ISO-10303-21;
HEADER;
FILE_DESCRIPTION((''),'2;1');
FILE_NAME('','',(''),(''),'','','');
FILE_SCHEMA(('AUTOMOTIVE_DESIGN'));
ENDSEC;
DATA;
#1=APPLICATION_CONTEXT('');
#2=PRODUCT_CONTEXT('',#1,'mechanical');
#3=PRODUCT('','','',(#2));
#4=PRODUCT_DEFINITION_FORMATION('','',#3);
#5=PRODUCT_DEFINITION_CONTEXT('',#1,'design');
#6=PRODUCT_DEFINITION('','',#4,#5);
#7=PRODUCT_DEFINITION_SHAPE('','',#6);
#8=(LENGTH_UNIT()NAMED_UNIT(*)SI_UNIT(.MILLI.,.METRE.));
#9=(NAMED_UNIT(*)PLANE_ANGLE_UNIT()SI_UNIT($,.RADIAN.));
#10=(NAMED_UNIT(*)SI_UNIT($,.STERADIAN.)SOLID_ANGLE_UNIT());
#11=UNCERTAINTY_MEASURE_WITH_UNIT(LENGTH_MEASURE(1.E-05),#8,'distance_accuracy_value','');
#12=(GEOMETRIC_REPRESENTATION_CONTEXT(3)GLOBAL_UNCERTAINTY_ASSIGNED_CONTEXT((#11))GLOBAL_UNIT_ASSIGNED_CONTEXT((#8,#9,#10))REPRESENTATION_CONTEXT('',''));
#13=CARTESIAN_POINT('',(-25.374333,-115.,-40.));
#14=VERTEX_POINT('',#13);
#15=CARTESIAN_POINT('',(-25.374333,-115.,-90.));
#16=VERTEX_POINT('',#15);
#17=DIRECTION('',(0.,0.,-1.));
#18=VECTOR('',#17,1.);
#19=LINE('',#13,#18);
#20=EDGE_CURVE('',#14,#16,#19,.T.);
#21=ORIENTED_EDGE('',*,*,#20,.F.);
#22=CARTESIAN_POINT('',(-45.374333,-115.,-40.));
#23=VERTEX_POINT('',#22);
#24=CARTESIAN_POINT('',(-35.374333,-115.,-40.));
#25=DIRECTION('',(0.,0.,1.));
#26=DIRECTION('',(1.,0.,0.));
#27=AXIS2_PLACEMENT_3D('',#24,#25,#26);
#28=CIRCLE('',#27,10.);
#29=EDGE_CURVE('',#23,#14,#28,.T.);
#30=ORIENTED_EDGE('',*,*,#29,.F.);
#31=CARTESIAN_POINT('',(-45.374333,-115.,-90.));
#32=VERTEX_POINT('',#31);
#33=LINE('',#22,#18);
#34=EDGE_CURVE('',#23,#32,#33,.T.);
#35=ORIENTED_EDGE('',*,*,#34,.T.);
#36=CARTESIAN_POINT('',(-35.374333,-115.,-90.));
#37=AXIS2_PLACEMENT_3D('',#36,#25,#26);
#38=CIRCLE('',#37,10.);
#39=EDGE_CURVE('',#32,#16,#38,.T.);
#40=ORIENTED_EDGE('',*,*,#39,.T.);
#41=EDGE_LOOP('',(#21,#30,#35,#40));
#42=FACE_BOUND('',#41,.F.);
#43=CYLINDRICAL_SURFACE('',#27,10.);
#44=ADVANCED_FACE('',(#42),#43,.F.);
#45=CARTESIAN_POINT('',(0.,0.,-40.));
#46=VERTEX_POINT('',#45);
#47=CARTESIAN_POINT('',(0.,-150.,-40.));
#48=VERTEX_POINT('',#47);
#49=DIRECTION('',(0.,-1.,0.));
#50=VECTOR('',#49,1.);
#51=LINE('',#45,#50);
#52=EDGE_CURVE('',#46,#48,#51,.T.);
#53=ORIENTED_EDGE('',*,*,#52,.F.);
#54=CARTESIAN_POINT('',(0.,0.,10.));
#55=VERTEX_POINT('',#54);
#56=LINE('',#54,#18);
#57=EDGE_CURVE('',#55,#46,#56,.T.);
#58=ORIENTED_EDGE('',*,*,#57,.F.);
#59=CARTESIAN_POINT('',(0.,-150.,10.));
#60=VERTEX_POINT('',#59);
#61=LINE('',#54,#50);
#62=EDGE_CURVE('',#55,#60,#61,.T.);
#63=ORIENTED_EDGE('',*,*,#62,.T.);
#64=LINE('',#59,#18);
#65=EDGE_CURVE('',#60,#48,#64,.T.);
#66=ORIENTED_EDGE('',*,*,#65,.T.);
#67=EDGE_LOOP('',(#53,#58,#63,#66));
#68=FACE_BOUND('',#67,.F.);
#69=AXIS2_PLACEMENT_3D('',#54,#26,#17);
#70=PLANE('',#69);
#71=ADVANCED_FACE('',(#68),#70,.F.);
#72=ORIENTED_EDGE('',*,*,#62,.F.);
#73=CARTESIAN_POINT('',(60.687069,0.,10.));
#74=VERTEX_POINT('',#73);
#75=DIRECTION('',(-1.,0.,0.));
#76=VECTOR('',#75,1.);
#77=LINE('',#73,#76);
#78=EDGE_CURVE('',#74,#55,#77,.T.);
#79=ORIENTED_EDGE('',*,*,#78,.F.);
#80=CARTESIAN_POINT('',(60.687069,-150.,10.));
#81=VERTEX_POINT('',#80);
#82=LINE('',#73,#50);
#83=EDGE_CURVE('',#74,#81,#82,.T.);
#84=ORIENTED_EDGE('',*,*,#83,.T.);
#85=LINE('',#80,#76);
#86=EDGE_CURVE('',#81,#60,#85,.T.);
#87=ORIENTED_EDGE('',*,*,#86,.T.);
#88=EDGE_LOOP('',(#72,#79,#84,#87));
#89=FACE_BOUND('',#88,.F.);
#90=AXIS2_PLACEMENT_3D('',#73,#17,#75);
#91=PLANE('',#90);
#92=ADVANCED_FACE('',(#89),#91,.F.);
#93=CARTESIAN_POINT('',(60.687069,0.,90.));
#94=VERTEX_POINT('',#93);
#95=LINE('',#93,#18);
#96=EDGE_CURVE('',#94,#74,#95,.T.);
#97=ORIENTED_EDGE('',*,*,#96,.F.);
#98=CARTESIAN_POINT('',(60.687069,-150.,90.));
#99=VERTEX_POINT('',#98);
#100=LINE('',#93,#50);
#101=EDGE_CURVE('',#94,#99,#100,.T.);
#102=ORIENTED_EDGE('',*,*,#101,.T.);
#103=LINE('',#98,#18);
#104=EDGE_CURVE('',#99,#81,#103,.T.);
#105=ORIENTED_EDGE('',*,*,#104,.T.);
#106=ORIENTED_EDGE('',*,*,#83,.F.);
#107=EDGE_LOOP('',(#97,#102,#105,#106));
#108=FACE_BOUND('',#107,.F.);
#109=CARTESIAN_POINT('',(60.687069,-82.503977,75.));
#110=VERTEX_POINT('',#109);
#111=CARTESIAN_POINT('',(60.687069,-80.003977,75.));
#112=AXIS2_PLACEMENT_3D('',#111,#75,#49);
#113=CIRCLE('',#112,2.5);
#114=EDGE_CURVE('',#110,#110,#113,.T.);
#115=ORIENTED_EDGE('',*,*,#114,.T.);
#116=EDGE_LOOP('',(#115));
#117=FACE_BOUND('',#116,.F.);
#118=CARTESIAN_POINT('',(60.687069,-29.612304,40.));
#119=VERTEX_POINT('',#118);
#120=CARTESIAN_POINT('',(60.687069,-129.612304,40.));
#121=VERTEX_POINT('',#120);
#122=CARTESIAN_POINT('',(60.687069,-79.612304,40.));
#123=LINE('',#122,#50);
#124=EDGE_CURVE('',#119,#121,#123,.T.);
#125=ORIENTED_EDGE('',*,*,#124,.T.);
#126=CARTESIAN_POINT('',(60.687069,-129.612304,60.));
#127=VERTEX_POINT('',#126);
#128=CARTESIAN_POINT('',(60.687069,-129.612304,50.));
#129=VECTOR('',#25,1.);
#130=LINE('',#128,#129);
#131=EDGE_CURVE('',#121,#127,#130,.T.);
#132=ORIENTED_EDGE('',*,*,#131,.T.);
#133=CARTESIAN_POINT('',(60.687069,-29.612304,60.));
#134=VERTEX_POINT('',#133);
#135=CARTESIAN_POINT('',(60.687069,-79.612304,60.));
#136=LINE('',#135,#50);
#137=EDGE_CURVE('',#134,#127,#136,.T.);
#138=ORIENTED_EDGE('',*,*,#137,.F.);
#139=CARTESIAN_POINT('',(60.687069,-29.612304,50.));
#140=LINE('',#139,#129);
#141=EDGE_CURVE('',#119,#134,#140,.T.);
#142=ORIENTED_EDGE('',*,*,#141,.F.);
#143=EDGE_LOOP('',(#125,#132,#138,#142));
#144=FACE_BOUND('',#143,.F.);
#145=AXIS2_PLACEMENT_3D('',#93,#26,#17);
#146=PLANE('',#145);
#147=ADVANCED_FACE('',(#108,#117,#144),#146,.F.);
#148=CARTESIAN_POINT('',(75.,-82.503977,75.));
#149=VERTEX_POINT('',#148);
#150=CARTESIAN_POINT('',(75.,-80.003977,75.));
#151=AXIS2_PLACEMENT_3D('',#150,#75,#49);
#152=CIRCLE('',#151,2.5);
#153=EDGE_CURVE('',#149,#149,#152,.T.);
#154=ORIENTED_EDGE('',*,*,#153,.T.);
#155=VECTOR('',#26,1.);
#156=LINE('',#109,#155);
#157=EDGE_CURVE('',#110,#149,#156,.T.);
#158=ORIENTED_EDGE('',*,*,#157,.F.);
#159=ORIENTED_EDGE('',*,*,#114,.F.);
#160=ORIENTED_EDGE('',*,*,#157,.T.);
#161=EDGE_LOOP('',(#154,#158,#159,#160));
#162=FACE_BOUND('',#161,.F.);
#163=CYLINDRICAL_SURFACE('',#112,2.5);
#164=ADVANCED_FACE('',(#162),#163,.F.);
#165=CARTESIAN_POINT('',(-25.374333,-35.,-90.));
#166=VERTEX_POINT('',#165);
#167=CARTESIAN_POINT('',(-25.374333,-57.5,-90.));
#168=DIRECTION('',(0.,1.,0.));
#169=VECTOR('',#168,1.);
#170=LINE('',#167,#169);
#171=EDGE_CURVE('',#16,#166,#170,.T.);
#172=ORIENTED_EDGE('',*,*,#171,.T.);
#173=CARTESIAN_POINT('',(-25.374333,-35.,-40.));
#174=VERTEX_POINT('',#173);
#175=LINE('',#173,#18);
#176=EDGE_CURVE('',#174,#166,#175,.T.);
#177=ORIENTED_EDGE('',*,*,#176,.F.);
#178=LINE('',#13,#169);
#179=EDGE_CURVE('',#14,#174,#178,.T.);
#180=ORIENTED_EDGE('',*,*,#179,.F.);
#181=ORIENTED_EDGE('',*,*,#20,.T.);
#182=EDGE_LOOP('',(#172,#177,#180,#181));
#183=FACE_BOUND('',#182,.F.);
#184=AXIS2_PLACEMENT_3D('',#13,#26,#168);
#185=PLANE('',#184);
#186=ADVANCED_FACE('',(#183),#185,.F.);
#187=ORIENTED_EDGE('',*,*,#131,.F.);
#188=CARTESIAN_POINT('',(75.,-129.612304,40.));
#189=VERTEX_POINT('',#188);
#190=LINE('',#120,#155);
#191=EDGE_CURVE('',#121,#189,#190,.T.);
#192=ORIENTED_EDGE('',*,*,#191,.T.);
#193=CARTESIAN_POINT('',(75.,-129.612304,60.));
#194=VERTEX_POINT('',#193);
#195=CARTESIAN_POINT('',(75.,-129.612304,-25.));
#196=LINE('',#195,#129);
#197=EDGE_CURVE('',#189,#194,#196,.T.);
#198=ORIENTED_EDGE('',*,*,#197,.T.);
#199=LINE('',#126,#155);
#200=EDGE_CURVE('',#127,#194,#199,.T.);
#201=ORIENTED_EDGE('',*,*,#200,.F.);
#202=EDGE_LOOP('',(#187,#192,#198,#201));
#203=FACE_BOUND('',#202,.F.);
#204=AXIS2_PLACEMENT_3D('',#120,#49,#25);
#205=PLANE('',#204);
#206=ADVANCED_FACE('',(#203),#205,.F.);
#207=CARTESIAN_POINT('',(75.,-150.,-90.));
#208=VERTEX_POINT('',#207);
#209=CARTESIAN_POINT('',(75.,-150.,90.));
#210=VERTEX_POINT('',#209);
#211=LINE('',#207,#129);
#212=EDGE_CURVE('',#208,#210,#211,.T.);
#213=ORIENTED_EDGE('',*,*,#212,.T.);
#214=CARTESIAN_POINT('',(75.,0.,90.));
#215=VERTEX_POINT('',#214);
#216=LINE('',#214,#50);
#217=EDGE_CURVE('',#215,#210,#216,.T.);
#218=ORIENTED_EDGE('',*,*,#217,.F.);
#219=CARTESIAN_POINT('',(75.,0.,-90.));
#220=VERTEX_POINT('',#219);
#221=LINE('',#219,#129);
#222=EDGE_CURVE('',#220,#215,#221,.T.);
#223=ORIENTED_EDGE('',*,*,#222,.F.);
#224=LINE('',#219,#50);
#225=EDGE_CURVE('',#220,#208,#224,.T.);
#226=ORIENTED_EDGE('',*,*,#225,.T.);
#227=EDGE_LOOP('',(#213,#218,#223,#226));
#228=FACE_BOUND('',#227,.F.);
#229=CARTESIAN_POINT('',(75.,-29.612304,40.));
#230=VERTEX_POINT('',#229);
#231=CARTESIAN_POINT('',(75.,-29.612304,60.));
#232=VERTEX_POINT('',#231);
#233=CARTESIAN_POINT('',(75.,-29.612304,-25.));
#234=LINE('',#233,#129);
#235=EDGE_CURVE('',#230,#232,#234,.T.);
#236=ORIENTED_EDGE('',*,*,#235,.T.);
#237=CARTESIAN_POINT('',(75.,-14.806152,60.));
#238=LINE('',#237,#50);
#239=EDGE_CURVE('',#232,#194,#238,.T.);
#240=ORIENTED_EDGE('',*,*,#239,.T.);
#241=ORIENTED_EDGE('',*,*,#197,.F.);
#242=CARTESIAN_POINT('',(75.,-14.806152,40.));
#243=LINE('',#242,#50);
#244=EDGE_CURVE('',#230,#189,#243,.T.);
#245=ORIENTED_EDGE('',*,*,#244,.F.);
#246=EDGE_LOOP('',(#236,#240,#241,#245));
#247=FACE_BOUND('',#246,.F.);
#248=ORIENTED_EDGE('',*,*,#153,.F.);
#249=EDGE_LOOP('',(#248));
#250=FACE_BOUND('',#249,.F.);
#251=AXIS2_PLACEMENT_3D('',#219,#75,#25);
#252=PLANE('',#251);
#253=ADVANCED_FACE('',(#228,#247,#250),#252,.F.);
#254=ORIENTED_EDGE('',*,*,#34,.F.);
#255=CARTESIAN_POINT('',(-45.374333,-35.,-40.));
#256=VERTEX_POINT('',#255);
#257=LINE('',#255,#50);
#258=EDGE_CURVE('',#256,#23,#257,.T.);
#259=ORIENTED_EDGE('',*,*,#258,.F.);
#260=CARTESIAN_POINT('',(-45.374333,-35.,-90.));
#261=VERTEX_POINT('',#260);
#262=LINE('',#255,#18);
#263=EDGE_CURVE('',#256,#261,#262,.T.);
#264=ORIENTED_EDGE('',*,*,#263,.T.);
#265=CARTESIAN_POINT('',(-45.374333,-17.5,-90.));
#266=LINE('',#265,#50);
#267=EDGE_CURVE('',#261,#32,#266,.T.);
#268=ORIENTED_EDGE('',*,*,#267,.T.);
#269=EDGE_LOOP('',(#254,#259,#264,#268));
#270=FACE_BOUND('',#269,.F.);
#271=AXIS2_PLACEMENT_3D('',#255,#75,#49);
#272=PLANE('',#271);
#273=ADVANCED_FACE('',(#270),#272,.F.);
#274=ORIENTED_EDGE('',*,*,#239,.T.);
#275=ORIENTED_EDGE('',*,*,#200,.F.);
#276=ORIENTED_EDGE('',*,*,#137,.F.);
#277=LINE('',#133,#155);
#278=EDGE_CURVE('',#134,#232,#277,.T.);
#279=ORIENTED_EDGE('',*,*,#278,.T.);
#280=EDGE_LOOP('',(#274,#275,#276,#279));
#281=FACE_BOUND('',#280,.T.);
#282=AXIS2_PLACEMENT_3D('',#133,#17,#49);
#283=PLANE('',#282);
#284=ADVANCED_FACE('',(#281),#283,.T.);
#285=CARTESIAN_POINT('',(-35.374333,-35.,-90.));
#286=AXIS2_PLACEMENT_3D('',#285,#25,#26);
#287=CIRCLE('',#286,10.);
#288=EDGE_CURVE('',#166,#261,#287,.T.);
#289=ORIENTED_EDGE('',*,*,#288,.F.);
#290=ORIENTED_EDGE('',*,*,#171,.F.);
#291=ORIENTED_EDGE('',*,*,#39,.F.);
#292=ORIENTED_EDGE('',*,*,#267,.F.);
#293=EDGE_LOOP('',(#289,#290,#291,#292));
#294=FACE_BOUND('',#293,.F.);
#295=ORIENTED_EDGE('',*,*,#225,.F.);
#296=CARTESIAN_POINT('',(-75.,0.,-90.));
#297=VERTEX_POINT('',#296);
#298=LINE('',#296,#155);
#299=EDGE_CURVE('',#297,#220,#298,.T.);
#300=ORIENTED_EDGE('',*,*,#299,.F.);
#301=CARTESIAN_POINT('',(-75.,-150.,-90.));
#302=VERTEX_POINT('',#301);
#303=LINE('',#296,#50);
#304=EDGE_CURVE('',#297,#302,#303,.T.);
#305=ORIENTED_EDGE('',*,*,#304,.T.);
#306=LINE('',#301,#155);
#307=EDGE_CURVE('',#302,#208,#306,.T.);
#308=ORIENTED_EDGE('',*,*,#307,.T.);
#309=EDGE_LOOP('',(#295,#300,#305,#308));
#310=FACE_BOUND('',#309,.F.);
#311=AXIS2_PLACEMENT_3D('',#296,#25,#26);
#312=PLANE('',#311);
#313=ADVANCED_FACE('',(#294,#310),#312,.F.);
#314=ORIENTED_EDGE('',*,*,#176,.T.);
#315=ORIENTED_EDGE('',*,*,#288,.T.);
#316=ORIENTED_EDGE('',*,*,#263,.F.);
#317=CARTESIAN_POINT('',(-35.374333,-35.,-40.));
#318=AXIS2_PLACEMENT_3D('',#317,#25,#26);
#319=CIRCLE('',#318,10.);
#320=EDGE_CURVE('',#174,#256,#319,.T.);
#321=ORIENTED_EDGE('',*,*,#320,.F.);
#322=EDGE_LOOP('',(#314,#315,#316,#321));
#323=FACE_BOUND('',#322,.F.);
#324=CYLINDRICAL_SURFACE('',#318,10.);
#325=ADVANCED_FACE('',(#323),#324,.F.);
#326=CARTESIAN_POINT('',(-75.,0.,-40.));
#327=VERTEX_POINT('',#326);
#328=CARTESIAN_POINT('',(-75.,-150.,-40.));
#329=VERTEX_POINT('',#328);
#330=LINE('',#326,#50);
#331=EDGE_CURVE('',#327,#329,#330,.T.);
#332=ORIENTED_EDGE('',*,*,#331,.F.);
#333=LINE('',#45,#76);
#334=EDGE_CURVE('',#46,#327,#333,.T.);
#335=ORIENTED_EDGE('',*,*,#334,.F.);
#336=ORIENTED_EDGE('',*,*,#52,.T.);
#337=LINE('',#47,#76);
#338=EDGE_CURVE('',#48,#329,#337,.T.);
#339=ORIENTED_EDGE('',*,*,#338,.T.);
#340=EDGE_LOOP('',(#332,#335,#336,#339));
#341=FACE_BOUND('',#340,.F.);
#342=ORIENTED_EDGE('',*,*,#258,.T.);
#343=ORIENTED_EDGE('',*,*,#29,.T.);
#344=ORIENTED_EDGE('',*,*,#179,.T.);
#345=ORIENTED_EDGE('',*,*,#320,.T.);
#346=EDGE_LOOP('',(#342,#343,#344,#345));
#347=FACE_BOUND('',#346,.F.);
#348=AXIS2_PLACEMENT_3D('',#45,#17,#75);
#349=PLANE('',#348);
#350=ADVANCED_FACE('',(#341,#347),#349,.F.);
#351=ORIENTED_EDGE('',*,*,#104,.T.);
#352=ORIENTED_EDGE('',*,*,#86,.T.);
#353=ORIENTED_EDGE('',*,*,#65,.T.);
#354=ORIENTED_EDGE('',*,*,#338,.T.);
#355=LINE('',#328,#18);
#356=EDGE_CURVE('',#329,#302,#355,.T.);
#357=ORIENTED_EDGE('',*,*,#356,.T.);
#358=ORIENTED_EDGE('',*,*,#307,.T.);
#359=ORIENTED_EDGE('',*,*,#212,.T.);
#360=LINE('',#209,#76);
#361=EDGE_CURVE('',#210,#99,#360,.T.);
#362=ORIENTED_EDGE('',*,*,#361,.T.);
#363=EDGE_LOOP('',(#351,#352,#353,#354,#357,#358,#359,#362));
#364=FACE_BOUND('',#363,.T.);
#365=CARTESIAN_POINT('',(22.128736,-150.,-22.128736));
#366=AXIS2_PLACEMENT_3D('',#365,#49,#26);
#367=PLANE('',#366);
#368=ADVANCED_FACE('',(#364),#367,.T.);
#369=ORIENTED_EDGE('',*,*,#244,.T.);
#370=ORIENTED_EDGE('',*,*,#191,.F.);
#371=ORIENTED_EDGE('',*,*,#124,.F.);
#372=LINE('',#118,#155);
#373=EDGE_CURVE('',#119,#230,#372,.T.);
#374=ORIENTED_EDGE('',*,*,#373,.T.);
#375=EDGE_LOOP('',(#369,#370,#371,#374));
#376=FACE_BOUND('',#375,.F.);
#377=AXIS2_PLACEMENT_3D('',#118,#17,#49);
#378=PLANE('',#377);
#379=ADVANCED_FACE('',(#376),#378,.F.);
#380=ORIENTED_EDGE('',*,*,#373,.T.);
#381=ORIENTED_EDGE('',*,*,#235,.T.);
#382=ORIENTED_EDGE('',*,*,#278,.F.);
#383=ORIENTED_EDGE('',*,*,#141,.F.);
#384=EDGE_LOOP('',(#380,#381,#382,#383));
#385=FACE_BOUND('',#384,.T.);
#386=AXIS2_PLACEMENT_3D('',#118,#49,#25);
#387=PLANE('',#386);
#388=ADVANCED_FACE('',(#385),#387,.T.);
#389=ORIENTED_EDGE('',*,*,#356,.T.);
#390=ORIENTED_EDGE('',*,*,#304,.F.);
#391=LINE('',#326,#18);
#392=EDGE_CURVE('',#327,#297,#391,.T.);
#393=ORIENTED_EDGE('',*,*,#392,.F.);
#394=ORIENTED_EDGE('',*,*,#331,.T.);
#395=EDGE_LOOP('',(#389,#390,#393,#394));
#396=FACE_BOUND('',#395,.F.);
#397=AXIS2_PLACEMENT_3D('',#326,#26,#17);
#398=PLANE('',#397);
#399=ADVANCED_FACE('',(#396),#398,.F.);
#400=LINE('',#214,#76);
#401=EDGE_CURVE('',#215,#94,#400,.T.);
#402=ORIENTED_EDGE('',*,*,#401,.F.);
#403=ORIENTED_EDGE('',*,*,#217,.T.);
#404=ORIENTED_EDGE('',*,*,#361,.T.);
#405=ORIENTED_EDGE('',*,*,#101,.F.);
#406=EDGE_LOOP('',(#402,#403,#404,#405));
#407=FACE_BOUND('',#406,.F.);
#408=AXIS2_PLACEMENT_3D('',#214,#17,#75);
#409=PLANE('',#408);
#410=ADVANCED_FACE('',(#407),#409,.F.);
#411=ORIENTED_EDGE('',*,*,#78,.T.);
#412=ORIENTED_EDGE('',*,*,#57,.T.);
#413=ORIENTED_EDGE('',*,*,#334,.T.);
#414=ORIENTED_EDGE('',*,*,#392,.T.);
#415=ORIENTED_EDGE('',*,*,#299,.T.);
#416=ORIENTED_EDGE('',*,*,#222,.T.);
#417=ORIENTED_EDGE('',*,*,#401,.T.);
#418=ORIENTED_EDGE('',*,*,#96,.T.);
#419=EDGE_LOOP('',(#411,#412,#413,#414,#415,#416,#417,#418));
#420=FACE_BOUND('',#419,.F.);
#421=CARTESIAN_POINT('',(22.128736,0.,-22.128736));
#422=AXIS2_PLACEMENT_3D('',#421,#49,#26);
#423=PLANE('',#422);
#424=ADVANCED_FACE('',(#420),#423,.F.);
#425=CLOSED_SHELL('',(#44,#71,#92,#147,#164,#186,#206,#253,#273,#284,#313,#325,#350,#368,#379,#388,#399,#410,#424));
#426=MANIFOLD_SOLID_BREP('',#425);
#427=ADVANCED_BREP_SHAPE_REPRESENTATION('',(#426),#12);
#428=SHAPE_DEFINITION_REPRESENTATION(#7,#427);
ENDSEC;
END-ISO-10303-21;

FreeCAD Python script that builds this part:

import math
import FreeCAD as App
import Part
import Sketcher
from FreeCAD import Vector
Q = App.Units.Quantity


def add_polygon(sketch, points):
    """Adds a closed chain of lines whose ends are joined by coincident constraints."""
    first, n = sketch.GeometryCount, len(points)
    for a, b in zip(points, points[1:] + points[:1]):
        sketch.addGeometry(Part.LineSegment(App.Vector(*a, 0), App.Vector(*b, 0)), False)
    for i in range(n):
        sketch.addConstraint(Sketcher.Constraint("Coincident", first + i, 2, first + (i + 1) % n, 1))

doc = App.newDocument("Part")
params = doc.addObject("Spreadsheet::Sheet", "Params")
for row, (alias, value) in enumerate([
    ("sketch1_width", "150 mm"),
    ("sketch1_height", "180 mm"),
    ("sketch1_height2", "80 mm"),
    ("pad1_length", "150 mm"),
    ("sketch2_radius", "10 mm"),
    ("sketch2_height", "80 mm"),
    ("sketch3_diameter", "5 mm"),
    ("sketch3_width", "100 mm"),
    ("sketch3_height", "20 mm"),
], start=1):
    params.set(f"A{row}", alias)
    params.set(f"B{row}", "=" + value)
    params.setAlias(f"B{row}", alias)

body = doc.addObject("PartDesign::Body", "Body")

sketch1 = doc.addObject("Sketcher::SketchObject", "Sketch")
body.addObject(sketch1)
sketch1.AttachmentSupport = (doc.XZ_Plane, [""])
sketch1.MapMode = "FlatFace"
add_polygon(sketch1, [(-75, -90), (75, -90), (75, 90), (61, 90), (61, 10), (0, 10), (0, -40), (-75, -40)])
sketch1.addConstraint([
    Sketcher.Constraint("Horizontal", 0),
    Sketcher.Constraint("Vertical", 1),
    Sketcher.Constraint("Horizontal", 2),
    Sketcher.Constraint("Vertical", 3),
    Sketcher.Constraint("Horizontal", 4),
    Sketcher.Constraint("Vertical", 5),
    Sketcher.Constraint("Horizontal", 6),
    Sketcher.Constraint("Vertical", 7),
    Sketcher.Constraint("Symmetric", 1, 2, 7, 2, -1, 1),
    Sketcher.Constraint("PointOnObject", 4, 2, -2),
    Sketcher.Constraint("Equal", 5, 7),
    Sketcher.Constraint("DistanceX", 0, 1, 0, 2, Q("150 mm")),
    Sketcher.Constraint("DistanceY", 1, 1, 1, 2, Q("180 mm")),
    Sketcher.Constraint("DistanceY", 3, 2, 3, 1, Q("80 mm")),
    Sketcher.Constraint("DistanceX", 2, 2, 2, 1, Q("14.312931 mm")),
])
sketch1.setExpression("Constraints[19]", "Params.sketch1_width")
sketch1.setExpression("Constraints[20]", "Params.sketch1_height")
sketch1.setExpression("Constraints[21]", "Params.sketch1_height2")
pad1 = doc.addObject("PartDesign::Pad", "Pad")
body.addObject(pad1)
pad1.Profile = sketch1
pad1.setExpression("Length", "Params.pad1_length")

sketch2 = doc.addObject("Sketcher::SketchObject", "Sketch001")
body.addObject(sketch2)
sketch2.AttachmentSupport = (doc.XY_Plane, [""])
sketch2.MapMode = "FlatFace"
sketch2.AttachmentOffset = App.Placement(Vector(0, 0, -40), App.Rotation())
sketch2.addGeometry([
    Part.ArcOfCircle(Part.Circle(Vector(-35, -35, 0), Vector(0, 0, 1), 10), math.radians(0), math.radians(180)),
    Part.LineSegment(Vector(-45, -35, 0), Vector(-45, -115, 0)),
    Part.ArcOfCircle(Part.Circle(Vector(-35, -115, 0), Vector(0, 0, 1), 10), math.radians(180), math.radians(360)),
    Part.LineSegment(Vector(-25, -115, 0), Vector(-25, -35, 0)),
], False)
sketch2.addConstraint([
    Sketcher.Constraint("Tangent", 0, 2, 1, 1),
    Sketcher.Constraint("Tangent", 1, 2, 2, 1),
    Sketcher.Constraint("Tangent", 2, 2, 3, 1),
    Sketcher.Constraint("Tangent", 3, 2, 0, 1),
    Sketcher.Constraint("Vertical", 1),
    Sketcher.Constraint("Vertical", 3),
    Sketcher.Constraint("Radius", 0, Q("10 mm")),
    Sketcher.Constraint("DistanceY", 1, 2, 1, 1, Q("80 mm")),
    Sketcher.Constraint("DistanceY", 0, 3, -1, 1, Q("35 mm")),
    Sketcher.Constraint("DistanceX", 0, 3, -1, 1, Q("35.374333 mm")),
])
sketch2.setExpression("Constraints[6]", "Params.sketch2_radius")
sketch2.setExpression("Constraints[7]", "Params.sketch2_height")
pocket1 = doc.addObject("PartDesign::Pocket", "Pocket")
body.addObject(pocket1)
pocket1.Profile = sketch2
pocket1.Type = "ThroughAll"

sketch3 = doc.addObject("Sketcher::SketchObject", "Sketch002")
body.addObject(sketch3)
sketch3.AttachmentSupport = (doc.YZ_Plane, [""])
sketch3.MapMode = "FlatFace"
sketch3.AttachmentOffset = App.Placement(Vector(0, 0, 60.687069), App.Rotation())
add_polygon(sketch3, [(-29.6, 60), (-29.6, 40), (-129.6, 40), (-129.6, 60)])
sketch3.addGeometry(Part.Circle(Vector(-80, 75, 0), Vector(0, 0, 1), 2.5), False)
sketch3.addConstraint([
    Sketcher.Constraint("Vertical", 0),
    Sketcher.Constraint("Horizontal", 1),
    Sketcher.Constraint("Vertical", 2),
    Sketcher.Constraint("Horizontal", 3),
    Sketcher.Constraint("Diameter", 4, Q("5 mm")),
    Sketcher.Constraint("DistanceX", 1, 2, 1, 1, Q("100 mm")),
    Sketcher.Constraint("DistanceY", 0, 2, 0, 1, Q("20 mm")),
    Sketcher.Constraint("DistanceY", -1, 1, 4, 3, Q("75 mm")),
    Sketcher.Constraint("DistanceY", -1, 1, 0, 2, Q("40 mm")),
    Sketcher.Constraint("DistanceX", 4, 3, -1, 1, Q("80.003977 mm")),
    Sketcher.Constraint("DistanceX", 0, 2, -1, 1, Q("29.612304 mm")),
])
sketch3.setExpression("Constraints[8]", "Params.sketch3_diameter")
sketch3.setExpression("Constraints[9]", "Params.sketch3_width")
sketch3.setExpression("Constraints[10]", "Params.sketch3_height")
pocket2 = doc.addObject("PartDesign::Pocket", "Pocket001")
body.addObject(pocket2)
pocket2.Profile = sketch3
pocket2.Type = "ThroughAll"
pocket2.Reversed = True

doc.recompute()
